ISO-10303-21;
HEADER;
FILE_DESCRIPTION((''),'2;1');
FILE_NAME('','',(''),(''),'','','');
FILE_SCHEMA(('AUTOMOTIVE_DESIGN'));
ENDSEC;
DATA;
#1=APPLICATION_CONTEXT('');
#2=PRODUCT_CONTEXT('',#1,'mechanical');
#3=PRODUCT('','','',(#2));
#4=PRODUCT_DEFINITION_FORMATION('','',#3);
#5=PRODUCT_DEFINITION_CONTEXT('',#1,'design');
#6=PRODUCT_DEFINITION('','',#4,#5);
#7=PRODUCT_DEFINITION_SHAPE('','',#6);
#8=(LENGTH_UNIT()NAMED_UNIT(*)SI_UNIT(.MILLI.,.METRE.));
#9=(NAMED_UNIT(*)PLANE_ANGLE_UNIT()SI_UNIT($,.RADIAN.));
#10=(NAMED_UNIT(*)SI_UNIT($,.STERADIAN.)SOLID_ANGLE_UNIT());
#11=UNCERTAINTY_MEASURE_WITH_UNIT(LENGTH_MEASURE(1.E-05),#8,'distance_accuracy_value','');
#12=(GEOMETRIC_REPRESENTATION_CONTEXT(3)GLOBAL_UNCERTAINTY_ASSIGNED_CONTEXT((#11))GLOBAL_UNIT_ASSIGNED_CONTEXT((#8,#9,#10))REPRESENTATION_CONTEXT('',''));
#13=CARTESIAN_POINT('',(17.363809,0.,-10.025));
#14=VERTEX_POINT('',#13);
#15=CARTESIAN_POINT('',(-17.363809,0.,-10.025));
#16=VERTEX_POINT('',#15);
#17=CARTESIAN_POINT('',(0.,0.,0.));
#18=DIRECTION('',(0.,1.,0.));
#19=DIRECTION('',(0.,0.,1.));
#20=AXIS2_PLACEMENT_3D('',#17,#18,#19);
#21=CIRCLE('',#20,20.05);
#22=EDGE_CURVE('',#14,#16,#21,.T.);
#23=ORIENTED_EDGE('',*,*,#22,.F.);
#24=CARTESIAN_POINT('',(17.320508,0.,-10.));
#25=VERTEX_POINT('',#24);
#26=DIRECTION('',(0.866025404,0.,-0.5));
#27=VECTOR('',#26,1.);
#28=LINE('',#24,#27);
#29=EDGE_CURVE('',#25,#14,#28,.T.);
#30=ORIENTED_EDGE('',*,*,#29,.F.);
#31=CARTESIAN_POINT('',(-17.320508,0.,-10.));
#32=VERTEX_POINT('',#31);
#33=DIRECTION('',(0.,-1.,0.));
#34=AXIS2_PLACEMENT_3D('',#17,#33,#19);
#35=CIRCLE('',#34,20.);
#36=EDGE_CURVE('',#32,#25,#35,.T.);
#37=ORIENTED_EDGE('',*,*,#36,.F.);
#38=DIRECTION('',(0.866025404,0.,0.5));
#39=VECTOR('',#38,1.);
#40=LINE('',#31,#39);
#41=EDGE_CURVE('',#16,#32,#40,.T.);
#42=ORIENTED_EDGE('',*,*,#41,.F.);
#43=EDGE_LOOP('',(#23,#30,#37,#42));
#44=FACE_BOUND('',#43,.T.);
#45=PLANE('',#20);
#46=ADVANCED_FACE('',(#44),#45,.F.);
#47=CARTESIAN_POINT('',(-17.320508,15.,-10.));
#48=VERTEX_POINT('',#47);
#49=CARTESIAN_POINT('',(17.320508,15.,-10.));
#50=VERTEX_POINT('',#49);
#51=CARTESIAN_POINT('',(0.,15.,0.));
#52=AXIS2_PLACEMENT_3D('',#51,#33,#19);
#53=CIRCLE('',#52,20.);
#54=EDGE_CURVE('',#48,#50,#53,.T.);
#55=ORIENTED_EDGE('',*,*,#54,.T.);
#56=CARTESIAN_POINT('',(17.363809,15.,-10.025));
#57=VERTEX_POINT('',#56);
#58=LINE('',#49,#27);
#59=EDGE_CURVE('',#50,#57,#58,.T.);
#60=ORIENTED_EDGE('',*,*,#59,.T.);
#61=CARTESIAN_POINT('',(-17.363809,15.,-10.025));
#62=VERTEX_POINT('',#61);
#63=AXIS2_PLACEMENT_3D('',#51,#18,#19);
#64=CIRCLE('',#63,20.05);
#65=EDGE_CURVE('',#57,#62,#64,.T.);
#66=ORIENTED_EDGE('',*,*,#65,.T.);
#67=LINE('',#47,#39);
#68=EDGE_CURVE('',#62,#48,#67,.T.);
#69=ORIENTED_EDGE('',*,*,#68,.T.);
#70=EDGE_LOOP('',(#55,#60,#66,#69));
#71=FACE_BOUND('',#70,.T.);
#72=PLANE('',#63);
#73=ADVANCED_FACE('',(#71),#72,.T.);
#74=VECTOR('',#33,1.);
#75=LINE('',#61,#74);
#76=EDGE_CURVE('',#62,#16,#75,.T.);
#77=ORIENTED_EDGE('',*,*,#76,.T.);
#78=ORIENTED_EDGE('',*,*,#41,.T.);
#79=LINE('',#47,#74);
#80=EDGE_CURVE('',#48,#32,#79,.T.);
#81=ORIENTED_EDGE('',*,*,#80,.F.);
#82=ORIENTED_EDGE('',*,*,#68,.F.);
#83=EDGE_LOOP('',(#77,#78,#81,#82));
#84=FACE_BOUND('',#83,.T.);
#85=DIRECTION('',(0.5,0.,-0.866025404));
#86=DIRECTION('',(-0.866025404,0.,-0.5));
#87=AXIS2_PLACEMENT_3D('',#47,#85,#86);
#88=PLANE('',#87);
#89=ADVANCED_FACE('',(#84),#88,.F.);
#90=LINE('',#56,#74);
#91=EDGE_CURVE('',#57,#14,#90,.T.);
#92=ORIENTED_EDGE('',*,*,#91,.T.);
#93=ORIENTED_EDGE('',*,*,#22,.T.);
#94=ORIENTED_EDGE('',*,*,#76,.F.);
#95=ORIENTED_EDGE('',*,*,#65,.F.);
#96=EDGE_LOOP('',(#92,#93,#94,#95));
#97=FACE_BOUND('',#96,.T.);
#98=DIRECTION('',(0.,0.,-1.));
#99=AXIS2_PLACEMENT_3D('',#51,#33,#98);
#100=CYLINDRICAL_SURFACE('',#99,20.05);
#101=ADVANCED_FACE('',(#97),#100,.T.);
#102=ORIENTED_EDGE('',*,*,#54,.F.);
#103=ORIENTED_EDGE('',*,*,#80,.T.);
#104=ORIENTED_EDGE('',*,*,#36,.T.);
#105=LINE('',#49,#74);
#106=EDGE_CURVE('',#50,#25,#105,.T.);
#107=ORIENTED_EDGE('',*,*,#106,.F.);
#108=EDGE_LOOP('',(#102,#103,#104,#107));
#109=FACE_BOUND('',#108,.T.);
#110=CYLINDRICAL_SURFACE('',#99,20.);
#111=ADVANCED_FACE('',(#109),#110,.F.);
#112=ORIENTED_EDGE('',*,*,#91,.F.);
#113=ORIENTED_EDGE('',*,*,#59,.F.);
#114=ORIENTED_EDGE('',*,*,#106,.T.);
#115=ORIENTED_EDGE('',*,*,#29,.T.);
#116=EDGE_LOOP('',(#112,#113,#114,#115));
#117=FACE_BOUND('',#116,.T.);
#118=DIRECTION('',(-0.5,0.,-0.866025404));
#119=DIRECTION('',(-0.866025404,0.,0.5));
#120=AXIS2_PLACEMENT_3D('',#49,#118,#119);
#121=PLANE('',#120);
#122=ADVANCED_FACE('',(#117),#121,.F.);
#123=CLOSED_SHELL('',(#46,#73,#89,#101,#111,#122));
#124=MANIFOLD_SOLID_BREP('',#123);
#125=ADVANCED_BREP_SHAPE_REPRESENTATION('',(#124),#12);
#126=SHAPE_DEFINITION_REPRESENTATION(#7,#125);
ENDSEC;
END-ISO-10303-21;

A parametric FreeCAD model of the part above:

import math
import FreeCAD as App
import Part
import Sketcher
Q = App.Units.Quantity

doc = App.newDocument("Part")
body = doc.addObject("PartDesign::Body", "Body")

# Sketch on XZ plane
sketch1 = body.newObject("Sketcher::SketchObject", "Sketch")
sketch1.AttachmentSupport = (doc.getObject("XZ_Plane"), [""])
sketch1.MapMode = "FlatFace"
sketch1.addGeometry(Part.LineSegment(App.Vector(17.321, -10, 0), App.Vector(17.364, -10.025, 0)), False)
sketch1.addGeometry(Part.ArcOfCircle(Part.Circle(App.Vector(0, 0, 0), App.Vector(0, 0, 1), 20.05), math.radians(-150), math.radians(-30)), False)
sketch1.addGeometry(Part.LineSegment(App.Vector(-17.364, -10.025, 0), App.Vector(-17.321, -10, 0)), False)
sketch1.addGeometry(Part.ArcOfCircle(Part.Circle(App.Vector(0, 0, 0), App.Vector(0, 0, 1), 20), math.radians(-150), math.radians(-30)), False)
sketch1.addConstraint(Sketcher.Constraint("Coincident", 0, 2, 1, 2))
sketch1.addConstraint(Sketcher.Constraint("Coincident", 1, 1, 2, 1))
sketch1.addConstraint(Sketcher.Constraint("Coincident", 2, 2, 3, 1))
sketch1.addConstraint(Sketcher.Constraint("Coincident", 3, 2, 0, 1))
sketch1.addConstraint(Sketcher.Constraint("Coincident", 1, 3, -1, 1))
sketch1.addConstraint(Sketcher.Constraint("Coincident", 3, 3, -1, 1))
sketch1.addConstraint(Sketcher.Constraint("Horizontal", 0, 2, 1, 1))
sketch1.addConstraint(Sketcher.Constraint("Horizontal", 2, 2, 3, 2))
sketch1.addConstraint(Sketcher.Constraint("Radius", 3, Q("20 mm")))
sketch1.addConstraint(Sketcher.Constraint("Angle", 0, Q("-30 deg")))
sketch1.addConstraint(Sketcher.Constraint("Radius", 1, Q("20.05 mm")))
sketch1.addConstraint(Sketcher.Constraint("DistanceY", 2, 2, -1, 1, Q("10 mm")))
pad1 = body.newObject("PartDesign::Pad", "Pad")
pad1.Profile = sketch1
pad1.Length = 15
pad1.Reversed = True

doc.recompute()
